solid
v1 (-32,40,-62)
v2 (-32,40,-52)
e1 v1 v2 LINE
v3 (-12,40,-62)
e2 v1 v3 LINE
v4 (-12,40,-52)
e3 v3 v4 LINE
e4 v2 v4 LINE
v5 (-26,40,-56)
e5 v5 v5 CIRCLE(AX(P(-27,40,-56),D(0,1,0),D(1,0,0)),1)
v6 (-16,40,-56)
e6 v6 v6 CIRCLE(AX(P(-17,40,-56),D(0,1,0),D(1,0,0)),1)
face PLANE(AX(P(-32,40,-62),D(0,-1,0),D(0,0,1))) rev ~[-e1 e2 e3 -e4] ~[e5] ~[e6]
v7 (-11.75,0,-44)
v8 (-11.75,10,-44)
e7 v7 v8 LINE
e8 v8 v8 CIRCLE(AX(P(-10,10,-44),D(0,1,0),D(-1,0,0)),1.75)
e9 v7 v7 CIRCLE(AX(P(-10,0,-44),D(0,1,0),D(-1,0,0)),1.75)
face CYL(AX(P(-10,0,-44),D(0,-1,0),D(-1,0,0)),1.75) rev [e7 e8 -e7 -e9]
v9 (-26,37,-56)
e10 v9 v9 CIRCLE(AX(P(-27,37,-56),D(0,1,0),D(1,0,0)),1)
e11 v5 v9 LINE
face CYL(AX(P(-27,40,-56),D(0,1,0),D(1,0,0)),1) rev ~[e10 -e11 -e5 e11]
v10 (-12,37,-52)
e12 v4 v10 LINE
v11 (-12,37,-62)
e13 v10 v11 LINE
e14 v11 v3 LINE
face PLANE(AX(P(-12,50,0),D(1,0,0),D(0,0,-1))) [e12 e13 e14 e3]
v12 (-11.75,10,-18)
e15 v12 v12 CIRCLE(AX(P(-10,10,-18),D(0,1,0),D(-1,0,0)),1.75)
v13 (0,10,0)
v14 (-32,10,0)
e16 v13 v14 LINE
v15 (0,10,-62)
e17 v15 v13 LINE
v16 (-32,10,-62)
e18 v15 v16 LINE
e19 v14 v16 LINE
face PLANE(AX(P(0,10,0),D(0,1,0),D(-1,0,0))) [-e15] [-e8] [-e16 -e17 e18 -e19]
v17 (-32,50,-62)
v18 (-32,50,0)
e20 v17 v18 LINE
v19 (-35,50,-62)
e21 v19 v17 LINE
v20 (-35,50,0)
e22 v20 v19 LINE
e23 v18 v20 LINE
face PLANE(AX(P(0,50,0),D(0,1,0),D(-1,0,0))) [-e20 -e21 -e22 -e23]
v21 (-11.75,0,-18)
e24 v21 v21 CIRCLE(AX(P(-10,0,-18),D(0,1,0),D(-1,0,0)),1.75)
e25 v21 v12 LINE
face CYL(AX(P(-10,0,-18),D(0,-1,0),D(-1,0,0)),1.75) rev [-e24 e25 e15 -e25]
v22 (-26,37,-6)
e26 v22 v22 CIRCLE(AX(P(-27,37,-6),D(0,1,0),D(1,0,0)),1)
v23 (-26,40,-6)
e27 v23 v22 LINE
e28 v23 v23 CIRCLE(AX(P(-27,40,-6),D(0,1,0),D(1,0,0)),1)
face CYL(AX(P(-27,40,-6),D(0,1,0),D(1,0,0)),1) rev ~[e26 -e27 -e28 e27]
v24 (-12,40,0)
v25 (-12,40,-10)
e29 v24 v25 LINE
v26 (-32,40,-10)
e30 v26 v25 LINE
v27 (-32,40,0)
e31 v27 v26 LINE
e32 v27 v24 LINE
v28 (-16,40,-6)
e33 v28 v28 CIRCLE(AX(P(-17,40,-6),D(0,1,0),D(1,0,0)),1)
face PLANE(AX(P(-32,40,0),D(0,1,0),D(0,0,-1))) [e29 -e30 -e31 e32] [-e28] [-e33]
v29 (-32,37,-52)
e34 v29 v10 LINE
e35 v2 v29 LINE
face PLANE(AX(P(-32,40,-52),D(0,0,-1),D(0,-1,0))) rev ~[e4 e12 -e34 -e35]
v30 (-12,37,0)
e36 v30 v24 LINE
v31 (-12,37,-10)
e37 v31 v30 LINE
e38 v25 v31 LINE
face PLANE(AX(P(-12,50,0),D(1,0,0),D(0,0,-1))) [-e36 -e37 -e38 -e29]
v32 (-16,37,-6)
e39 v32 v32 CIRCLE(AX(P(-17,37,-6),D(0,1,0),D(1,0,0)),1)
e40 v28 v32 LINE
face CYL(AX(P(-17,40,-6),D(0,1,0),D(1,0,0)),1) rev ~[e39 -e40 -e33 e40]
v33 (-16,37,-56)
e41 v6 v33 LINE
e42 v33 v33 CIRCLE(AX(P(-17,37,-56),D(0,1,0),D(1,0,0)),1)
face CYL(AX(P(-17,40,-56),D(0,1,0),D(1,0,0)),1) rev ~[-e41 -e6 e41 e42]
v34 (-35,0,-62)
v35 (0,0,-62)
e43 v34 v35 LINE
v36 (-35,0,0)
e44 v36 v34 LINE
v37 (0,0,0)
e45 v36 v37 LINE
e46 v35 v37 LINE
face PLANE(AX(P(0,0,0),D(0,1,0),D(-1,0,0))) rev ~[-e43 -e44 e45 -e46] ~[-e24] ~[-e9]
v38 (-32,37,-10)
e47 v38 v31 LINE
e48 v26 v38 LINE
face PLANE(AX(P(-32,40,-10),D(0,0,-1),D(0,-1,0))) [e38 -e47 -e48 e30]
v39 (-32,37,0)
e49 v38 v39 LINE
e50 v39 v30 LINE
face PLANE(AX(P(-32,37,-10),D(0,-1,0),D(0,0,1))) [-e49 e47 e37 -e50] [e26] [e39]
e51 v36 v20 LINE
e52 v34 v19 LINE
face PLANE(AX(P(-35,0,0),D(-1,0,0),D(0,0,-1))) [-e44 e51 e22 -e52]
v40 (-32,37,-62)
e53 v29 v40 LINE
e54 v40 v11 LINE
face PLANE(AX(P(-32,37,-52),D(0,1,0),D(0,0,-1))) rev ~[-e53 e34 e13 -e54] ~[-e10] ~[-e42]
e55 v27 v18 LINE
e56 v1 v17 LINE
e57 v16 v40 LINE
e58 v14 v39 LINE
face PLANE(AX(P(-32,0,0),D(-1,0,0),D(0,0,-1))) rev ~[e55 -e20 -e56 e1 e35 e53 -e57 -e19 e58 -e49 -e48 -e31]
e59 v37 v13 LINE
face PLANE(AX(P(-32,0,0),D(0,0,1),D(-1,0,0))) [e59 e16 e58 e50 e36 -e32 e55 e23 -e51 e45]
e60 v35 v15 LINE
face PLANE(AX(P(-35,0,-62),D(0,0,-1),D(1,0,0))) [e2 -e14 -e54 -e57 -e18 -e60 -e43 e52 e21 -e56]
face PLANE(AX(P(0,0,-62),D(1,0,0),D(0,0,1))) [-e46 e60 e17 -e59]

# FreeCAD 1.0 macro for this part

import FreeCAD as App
import Part
import Sketcher
from FreeCAD import Vector
Q = App.Units.Quantity

doc = App.newDocument("Part")
body = doc.addObject("PartDesign::Body", "Body")

# Sketch on XZ plane
sketch1 = body.newObject("Sketcher::SketchObject", "Sketch")
sketch1.AttachmentSupport = (doc.getObject("XZ_Plane"), [""])
sketch1.MapMode = "FlatFace"
sketch1.addGeometry(Part.LineSegment(Vector(-35, 0, 0), Vector(-32, 0, 0)), False)
sketch1.addGeometry(Part.LineSegment(Vector(-32, 0, 0), Vector(-32, -62, 0)), False)
sketch1.addGeometry(Part.LineSegment(Vector(-32, -62, 0), Vector(-35, -62, 0)), False)
sketch1.addGeometry(Part.LineSegment(Vector(-35, -62, 0), Vector(-35, 0, 0)), False)
sketch1.addConstraint(Sketcher.Constraint("Coincident", 0, 2, 1, 1))
sketch1.addConstraint(Sketcher.Constraint("Coincident", 1, 2, 2, 1))
sketch1.addConstraint(Sketcher.Constraint("Coincident", 2, 2, 3, 1))
sketch1.addConstraint(Sketcher.Constraint("Coincident", 3, 2, 0, 1))
sketch1.addConstraint(Sketcher.Constraint("Horizontal", 0))
sketch1.addConstraint(Sketcher.Constraint("Vertical", 1))
sketch1.addConstraint(Sketcher.Constraint("Horizontal", 2))
sketch1.addConstraint(Sketcher.Constraint("Vertical", 3))
sketch1.addConstraint(Sketcher.Constraint("PointOnObject", 0, 2, -1))
sketch1.addConstraint(Sketcher.Constraint("DistanceX", 0, 1, 0, 2, Q("3 mm")))
sketch1.addConstraint(Sketcher.Constraint("DistanceY", 1, 2, 1, 1, Q("62 mm")))
sketch1.addConstraint(Sketcher.Constraint("DistanceX", 2, 2, -1, 1, Q("35 mm")))
pad1 = body.newObject("PartDesign::Pad", "Pad")
pad1.Profile = sketch1
pad1.Length = 50
pad1.Reversed = True

# Sketch on XZ plane
sketch2 = body.newObject("Sketcher::SketchObject", "Sketch001")
sketch2.AttachmentSupport = (doc.getObject("XZ_Plane"), [""])
sketch2.MapMode = "FlatFace"
sketch2.addGeometry(Part.LineSegment(Vector(0, 0, 0), Vector(0, -62, 0)), False)
sketch2.addGeometry(Part.LineSegment(Vector(0, -62, 0), Vector(-32, -62, 0)), False)
sketch2.addGeometry(Part.LineSegment(Vector(-32, -62, 0), Vector(-32, 0, 0)), False)
sketch2.addGeometry(Part.LineSegment(Vector(-32, 0, 0), Vector(0, 0, 0)), False)
sketch2.addGeometry(Part.Circle(Vector(-10, -44, 0), Vector(0, 0, 1), 1.8), False)
sketch2.addGeometry(Part.Circle(Vector(-10, -18, 0), Vector(0, 0, 1), 1.8), False)
sketch2.addConstraint(Sketcher.Constraint("Coincident", 0, 2, 1, 1))
sketch2.addConstraint(Sketcher.Constraint("Coincident", 1, 2, 2, 1))
sketch2.addConstraint(Sketcher.Constraint("Coincident", 2, 2, 3, 1))
sketch2.addConstraint(Sketcher.Constraint("Coincident", 3, 2, 0, 1))
sketch2.addConstraint(Sketcher.Constraint("Vertical", 0))
sketch2.addConstraint(Sketcher.Constraint("Horizontal", 1))
sketch2.addConstraint(Sketcher.Constraint("Vertical", 2))
sketch2.addConstraint(Sketcher.Constraint("Horizontal", 3))
sketch2.addConstraint(Sketcher.Constraint("Coincident", 3, 2, -1, 1))
sketch2.addConstraint(Sketcher.Constraint("Equal", 4, 5))
sketch2.addConstraint(Sketcher.Constraint("Vertical", 4, 3, 5, 3))
sketch2.addConstraint(Sketcher.Constraint("Diameter", 4, Q("3.5 mm")))
sketch2.addConstraint(Sketcher.Constraint("DistanceY", 0, 2, 0, 1, Q("62 mm")))
sketch2.addConstraint(Sketcher.Constraint("DistanceX", 4, 3, -1, 1, Q("10 mm")))
sketch2.addConstraint(Sketcher.Constraint("DistanceX", 1, 2, 1, 1, Q("32 mm")))
sketch2.addConstraint(Sketcher.Constraint("DistanceY", 4, 3, -1, 1, Q("44 mm")))
sketch2.addConstraint(Sketcher.Constraint("DistanceY", 5, 3, -1, 1, Q("18 mm")))
pad2 = body.newObject("PartDesign::Pad", "Pad001")
pad2.Profile = sketch2
pad2.Length = 10
pad2.Reversed = True

# Sketch on YZ plane
sketch3 = body.newObject("Sketcher::SketchObject", "Sketch002")
sketch3.AttachmentSupport = (doc.getObject("YZ_Plane"), [""])
sketch3.MapMode = "FlatFace"
sketch3.AttachmentOffset = App.Placement(Vector(0, 0, -32), App.Rotation())
sketch3.addGeometry(Part.LineSegment(Vector(40, -10, 0), Vector(40, 0, 0)), False)
sketch3.addGeometry(Part.LineSegment(Vector(40, 0, 0), Vector(37, 0, 0)), False)
sketch3.addGeometry(Part.LineSegment(Vector(37, 0, 0), Vector(37, -10, 0)), False)
sketch3.addGeometry(Part.LineSegment(Vector(37, -10, 0), Vector(40, -10, 0)), False)
sketch3.addGeometry(Part.LineSegment(Vector(37, -52, 0), Vector(37, -62, 0)), False)
sketch3.addGeometry(Part.LineSegment(Vector(37, -62, 0), Vector(40, -62, 0)), False)
sketch3.addGeometry(Part.LineSegment(Vector(40, -62, 0), Vector(40, -52, 0)), False)
sketch3.addGeometry(Part.LineSegment(Vector(40, -52, 0), Vector(37, -52, 0)), False)
sketch3.addConstraint(Sketcher.Constraint("Coincident", 0, 2, 1, 1))
sketch3.addConstraint(Sketcher.Constraint("Coincident", 1, 2, 2, 1))
sketch3.addConstraint(Sketcher.Constraint("Coincident", 2, 2, 3, 1))
sketch3.addConstraint(Sketcher.Constraint("Coincident", 3, 2, 0, 1))
sketch3.addConstraint(Sketcher.Constraint("Coincident", 4, 2, 5, 1))
sketch3.addConstraint(Sketcher.Constraint("Coincident", 5, 2, 6, 1))
sketch3.addConstraint(Sketcher.Constraint("Coincident", 6, 2, 7, 1))
sketch3.addConstraint(Sketcher.Constraint("Coincident", 7, 2, 4, 1))
sketch3.addConstraint(Sketcher.Constraint("Vertical", 0))
sketch3.addConstraint(Sketcher.Constraint("Horizontal", 1))
sketch3.addConstraint(Sketcher.Constraint("Vertical", 2))
sketch3.addConstraint(Sketcher.Constraint("Horizontal", 3))
sketch3.addConstraint(Sketcher.Constraint("Vertical", 4))
sketch3.addConstraint(Sketcher.Constraint("Horizontal", 5))
sketch3.addConstraint(Sketcher.Constraint("Vertical", 6))
sketch3.addConstraint(Sketcher.Constraint("Horizontal", 7))
sketch3.addConstraint(Sketcher.Constraint("PointOnObject", 0, 2, -1))
sketch3.addConstraint(Sketcher.Constraint("Vertical", 2, 2, 4, 2))
sketch3.addConstraint(Sketcher.Constraint("Vertical", 3, 2, 5, 2))
sketch3.addConstraint(Sketcher.Constraint("Equal", 2, 4))
sketch3.addConstraint(Sketcher.Constraint("DistanceX", 1, 2, 1, 1, Q("3 mm")))
sketch3.addConstraint(Sketcher.Constraint("DistanceY", 0, 1, 0, 2, Q("10 mm")))
sketch3.addConstraint(Sketcher.Constraint("DistanceX", -1, 1, 0, 2, Q("40 mm")))
sketch3.addConstraint(Sketcher.Constraint("DistanceY", 4, 2, -1, 1, Q("62 mm")))
pad3 = body.newObject("PartDesign::Pad", "Pad002")
pad3.Profile = sketch3
pad3.Length = 20

# Sketch on XZ plane
sketch4 = body.newObject("Sketcher::SketchObject", "Sketch003")
sketch4.AttachmentSupport = (doc.getObject("XZ_Plane"), [""])
sketch4.MapMode = "FlatFace"
sketch4.AttachmentOffset = App.Placement(Vector(0, 0, -40), App.Rotation())
sketch4.addGeometry(Part.Circle(Vector(-27, -6, 0), Vector(0, 0, 1), 1), False)
sketch4.addGeometry(Part.Circle(Vector(-17, -6, 0), Vector(0, 0, 1), 1), False)
sketch4.addGeometry(Part.Circle(Vector(-27, -56, 0), Vector(0, 0, 1), 1), False)
sketch4.addGeometry(Part.Circle(Vector(-17, -56, 0), Vector(0, 0, 1), 1), False)
sketch4.addConstraint(Sketcher.Constraint("Equal", 0, 1))
sketch4.addConstraint(Sketcher.Constraint("Equal", 1, 2))
sketch4.addConstraint(Sketcher.Constraint("Equal", 2, 3))
sketch4.addConstraint(Sketcher.Constraint("Horizontal", 0, 3, 1, 3))
sketch4.addConstraint(Sketcher.Constraint("Horizontal", 2, 3, 3, 3))
sketch4.addConstraint(Sketcher.Constraint("Vertical", 0, 3, 2, 3))
sketch4.addConstraint(Sketcher.Constraint("Vertical", 1, 3, 3, 3))
sketch4.addConstraint(Sketcher.Constraint("Diameter", 0, Q("2 mm")))
sketch4.addConstraint(Sketcher.Constraint("DistanceX", 0, 3, -1, 1, Q("27 mm")))
sketch4.addConstraint(Sketcher.Constraint("DistanceY", 0, 3, -1, 1, Q("6 mm")))
sketch4.addConstraint(Sketcher.Constraint("DistanceX", 1, 3, -1, 1, Q("17 mm")))
sketch4.addConstraint(Sketcher.Constraint("DistanceY", 2, 3, -1, 1, Q("56 mm")))
pocket1 = body.newObject("PartDesign::Pocket", "Pocket")
pocket1.Profile = sketch4
pocket1.Length = 3
pocket1.Reversed = True

doc.recompute()
